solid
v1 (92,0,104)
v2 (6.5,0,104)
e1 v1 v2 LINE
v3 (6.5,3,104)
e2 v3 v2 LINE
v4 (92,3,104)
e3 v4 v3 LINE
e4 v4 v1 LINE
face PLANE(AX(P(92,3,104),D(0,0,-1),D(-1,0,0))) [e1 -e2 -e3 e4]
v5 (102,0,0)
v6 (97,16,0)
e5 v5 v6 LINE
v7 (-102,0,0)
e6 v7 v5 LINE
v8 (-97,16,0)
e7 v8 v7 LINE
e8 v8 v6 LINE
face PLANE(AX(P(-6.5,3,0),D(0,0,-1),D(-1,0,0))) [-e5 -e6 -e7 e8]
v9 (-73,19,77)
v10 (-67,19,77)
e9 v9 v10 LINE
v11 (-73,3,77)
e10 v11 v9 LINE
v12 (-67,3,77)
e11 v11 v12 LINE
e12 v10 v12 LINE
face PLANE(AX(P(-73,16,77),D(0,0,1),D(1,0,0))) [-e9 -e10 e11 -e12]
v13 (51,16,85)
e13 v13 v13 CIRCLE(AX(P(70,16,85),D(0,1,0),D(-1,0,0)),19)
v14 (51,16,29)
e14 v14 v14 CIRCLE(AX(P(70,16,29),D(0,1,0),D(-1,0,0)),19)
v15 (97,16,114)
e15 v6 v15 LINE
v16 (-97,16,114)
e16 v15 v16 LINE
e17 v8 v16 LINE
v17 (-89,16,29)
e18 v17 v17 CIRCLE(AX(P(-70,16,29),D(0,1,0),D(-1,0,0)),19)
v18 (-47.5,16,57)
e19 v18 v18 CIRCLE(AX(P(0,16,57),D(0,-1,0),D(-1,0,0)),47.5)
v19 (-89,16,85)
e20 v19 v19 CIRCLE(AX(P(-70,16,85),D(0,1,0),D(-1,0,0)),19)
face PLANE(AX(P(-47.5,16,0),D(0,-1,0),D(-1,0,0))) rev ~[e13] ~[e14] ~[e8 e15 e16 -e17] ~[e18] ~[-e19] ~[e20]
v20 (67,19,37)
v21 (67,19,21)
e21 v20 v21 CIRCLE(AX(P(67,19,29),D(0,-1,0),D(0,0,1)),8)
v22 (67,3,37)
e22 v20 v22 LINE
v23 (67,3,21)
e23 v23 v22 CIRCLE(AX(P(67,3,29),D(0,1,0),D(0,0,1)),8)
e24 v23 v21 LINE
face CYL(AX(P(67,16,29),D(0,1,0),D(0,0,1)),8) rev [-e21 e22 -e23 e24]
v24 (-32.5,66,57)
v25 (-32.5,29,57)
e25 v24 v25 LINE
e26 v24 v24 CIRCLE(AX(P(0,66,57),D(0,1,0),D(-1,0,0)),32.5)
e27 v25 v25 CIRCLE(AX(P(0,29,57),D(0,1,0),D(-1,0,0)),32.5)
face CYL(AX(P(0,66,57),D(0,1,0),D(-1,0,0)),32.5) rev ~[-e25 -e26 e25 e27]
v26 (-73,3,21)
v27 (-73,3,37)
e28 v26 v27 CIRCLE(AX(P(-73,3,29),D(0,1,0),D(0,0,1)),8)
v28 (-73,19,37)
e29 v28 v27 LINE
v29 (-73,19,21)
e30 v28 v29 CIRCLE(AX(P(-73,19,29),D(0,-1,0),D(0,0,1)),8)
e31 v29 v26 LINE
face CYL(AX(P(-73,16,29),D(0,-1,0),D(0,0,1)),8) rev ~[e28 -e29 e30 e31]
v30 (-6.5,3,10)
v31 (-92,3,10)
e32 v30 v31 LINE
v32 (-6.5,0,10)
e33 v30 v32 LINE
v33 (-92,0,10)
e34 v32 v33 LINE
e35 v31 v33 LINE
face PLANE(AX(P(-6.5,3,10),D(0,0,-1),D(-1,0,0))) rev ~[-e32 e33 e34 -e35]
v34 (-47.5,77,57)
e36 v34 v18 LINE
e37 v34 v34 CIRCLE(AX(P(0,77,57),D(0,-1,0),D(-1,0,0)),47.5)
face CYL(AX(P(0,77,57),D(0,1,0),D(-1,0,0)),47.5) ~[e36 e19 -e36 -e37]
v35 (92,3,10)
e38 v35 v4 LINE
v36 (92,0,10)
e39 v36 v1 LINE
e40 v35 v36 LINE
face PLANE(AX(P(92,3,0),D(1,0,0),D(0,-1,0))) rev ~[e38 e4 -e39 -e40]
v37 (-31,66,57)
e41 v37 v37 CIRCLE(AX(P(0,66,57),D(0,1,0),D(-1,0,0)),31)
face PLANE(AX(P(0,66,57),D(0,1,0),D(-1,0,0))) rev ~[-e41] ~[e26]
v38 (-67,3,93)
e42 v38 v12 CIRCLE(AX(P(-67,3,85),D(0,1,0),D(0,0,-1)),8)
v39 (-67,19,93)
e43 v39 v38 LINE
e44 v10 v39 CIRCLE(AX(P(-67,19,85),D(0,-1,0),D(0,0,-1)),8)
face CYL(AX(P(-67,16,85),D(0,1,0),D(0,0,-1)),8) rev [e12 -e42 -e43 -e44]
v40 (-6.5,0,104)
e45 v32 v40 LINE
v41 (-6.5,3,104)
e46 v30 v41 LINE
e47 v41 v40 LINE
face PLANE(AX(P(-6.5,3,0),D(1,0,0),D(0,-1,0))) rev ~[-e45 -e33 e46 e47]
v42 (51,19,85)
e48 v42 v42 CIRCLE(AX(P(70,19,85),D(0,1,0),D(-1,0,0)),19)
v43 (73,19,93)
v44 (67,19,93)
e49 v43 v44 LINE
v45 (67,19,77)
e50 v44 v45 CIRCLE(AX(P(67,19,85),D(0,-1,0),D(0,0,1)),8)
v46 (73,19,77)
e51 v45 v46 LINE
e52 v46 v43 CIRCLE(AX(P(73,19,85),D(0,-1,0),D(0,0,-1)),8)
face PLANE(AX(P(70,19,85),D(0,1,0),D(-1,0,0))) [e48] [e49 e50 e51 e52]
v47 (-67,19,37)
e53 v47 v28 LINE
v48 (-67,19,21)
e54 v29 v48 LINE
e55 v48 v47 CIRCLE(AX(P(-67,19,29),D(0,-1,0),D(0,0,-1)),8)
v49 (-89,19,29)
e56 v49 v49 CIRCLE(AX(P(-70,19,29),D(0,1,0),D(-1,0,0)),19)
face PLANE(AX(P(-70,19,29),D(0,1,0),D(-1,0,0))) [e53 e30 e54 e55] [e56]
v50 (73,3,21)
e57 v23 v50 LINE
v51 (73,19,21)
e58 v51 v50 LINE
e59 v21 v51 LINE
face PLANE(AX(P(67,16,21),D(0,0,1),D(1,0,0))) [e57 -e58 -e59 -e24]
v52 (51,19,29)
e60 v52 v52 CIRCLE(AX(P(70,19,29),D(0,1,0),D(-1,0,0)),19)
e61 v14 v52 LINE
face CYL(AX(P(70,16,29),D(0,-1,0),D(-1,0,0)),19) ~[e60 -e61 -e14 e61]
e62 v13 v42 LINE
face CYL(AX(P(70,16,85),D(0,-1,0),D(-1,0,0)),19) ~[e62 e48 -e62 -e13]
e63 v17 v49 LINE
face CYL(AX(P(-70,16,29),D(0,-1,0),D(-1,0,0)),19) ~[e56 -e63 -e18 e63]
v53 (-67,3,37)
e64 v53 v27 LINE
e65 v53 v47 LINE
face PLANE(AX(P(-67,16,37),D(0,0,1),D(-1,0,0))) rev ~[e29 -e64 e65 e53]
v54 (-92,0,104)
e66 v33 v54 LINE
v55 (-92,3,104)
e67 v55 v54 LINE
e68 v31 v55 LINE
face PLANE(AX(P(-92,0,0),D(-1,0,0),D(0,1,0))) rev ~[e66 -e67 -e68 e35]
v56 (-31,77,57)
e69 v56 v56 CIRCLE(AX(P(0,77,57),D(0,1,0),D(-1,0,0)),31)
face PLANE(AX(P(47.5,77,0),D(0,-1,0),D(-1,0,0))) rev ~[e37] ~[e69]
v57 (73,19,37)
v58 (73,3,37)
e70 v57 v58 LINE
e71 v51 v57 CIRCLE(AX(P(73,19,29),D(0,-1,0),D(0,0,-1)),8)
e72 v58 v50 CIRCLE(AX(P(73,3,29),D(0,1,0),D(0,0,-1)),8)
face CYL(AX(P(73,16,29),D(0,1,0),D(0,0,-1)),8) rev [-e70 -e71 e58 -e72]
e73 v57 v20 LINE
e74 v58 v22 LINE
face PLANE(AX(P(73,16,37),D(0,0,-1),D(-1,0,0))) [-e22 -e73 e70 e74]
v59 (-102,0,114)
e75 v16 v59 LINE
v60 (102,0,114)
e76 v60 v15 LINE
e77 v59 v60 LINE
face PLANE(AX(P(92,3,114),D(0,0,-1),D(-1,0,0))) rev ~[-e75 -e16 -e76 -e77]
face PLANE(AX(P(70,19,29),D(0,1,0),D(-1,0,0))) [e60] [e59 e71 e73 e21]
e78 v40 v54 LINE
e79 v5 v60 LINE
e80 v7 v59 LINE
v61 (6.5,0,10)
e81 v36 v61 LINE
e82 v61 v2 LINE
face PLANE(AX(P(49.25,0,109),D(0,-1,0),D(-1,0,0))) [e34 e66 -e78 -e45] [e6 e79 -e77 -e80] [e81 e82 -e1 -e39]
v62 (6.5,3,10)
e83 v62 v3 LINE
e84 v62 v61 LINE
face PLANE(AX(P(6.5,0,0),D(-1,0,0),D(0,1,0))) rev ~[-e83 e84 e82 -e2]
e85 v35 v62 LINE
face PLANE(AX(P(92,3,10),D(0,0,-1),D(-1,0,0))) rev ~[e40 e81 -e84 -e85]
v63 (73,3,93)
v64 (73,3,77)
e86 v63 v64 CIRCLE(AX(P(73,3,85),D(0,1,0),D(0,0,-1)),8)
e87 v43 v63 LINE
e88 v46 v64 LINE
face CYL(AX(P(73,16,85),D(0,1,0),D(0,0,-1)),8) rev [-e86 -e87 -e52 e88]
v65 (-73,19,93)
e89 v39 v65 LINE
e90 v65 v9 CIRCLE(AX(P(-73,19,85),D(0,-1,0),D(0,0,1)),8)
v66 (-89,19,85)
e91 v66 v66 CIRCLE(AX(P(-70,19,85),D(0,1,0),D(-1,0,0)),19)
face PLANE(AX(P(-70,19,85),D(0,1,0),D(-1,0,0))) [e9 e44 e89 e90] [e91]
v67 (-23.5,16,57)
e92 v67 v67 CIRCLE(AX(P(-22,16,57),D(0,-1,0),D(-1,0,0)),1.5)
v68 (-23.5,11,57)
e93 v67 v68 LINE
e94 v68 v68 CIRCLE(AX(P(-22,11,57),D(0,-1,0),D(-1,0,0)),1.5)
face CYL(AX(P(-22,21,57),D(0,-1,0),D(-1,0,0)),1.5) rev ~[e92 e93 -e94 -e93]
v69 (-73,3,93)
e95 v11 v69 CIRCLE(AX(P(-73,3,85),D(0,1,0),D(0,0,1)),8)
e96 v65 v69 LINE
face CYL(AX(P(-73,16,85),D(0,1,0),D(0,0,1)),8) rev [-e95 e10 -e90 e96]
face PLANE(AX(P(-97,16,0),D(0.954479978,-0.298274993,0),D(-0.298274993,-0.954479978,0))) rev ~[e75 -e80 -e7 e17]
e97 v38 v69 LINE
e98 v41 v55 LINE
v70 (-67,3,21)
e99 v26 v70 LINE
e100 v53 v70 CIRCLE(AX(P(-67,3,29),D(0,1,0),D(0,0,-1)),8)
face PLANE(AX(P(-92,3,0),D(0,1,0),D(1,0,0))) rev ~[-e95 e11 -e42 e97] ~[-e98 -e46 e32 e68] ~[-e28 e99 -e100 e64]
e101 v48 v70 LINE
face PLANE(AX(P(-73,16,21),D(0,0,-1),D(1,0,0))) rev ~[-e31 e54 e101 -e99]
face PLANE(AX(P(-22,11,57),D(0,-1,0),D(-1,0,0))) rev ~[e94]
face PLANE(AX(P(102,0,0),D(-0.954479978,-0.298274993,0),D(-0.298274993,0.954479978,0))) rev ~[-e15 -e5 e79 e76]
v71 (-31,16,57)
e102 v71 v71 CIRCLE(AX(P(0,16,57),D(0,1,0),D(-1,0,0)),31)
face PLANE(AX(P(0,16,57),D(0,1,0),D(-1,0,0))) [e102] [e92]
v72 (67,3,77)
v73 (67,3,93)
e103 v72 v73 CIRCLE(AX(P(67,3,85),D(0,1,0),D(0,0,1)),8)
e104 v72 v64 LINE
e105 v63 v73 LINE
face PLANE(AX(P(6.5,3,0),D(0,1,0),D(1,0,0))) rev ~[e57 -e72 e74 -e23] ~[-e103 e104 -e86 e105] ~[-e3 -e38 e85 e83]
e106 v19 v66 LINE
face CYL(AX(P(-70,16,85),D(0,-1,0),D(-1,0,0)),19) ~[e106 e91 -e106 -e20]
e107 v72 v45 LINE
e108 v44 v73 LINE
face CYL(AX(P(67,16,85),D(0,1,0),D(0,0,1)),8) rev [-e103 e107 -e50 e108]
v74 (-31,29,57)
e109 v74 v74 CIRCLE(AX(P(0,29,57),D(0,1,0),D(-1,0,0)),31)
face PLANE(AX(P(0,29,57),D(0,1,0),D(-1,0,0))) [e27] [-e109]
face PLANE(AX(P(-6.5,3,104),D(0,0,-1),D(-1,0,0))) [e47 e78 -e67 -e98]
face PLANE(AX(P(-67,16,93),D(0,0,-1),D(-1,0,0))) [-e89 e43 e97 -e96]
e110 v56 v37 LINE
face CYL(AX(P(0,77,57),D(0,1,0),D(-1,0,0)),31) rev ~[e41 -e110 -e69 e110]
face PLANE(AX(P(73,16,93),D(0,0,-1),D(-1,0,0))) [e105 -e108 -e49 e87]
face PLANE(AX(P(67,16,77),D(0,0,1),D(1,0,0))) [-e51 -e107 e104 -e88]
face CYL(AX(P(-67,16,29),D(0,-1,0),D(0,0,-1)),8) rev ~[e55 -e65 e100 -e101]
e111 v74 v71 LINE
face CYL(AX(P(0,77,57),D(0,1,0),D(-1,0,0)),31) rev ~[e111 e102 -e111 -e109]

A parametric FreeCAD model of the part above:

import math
import FreeCAD as App
import Part
import Sketcher
from FreeCAD import Vector


def add_polygon(sketch, points):
    """Adds a closed chain of lines whose ends are joined by coincident constraints."""
    first, n = sketch.GeometryCount, len(points)
    for a, b in zip(points, points[1:] + points[:1]):
        sketch.addGeometry(Part.LineSegment(App.Vector(*a, 0), App.Vector(*b, 0)), False)
    for i in range(n):
        sketch.addConstraint(Sketcher.Constraint("Coincident", first + i, 2, first + (i + 1) % n, 1))

doc = App.newDocument("Part")
body = doc.addObject("PartDesign::Body", "Body")

sketch1 = doc.addObject("Sketcher::SketchObject", "Sketch")
body.addObject(sketch1)
sketch1.AttachmentSupport = (doc.XY_Plane, [""])
sketch1.MapMode = "FlatFace"
add_polygon(sketch1, [(-6.5, 3), (-6.5, 0), (6.5, 0), (6.5, 3), (92, 3), (92, 0), (102, 0), (97, 16), (47.5, 16), (47.5, 77), (-47.5, 77), (-47.5, 16), (-97, 16), (-102, 0), (-92, 0), (-92, 3)])
sketch1.addConstraint(Sketcher.Constraint("Vertical", 0))
sketch1.addConstraint(Sketcher.Constraint("Horizontal", 1))
sketch1.addConstraint(Sketcher.Constraint("Vertical", 2))
sketch1.addConstraint(Sketcher.Constraint("Horizontal", 3))
sketch1.addConstraint(Sketcher.Constraint("Vertical", 4))
sketch1.addConstraint(Sketcher.Constraint("Horizontal", 5))
sketch1.addConstraint(Sketcher.Constraint("Horizontal", 7))
sketch1.addConstraint(Sketcher.Constraint("Vertical", 8))
sketch1.addConstraint(Sketcher.Constraint("Horizontal", 9))
sketch1.addConstraint(Sketcher.Constraint("Vertical", 10))
sketch1.addConstraint(Sketcher.Constraint("Horizontal", 11))
sketch1.addConstraint(Sketcher.Constraint("Horizontal", 13))
sketch1.addConstraint(Sketcher.Constraint("Vertical", 14))
sketch1.addConstraint(Sketcher.Constraint("Horizontal", 15))
sketch1.addConstraint(Sketcher.Constraint("Symmetric", 0, 2, 1, 2, -1, 1))
sketch1.addConstraint(Sketcher.Constraint("Symmetric", 5, 2, 12, 2, -1, 1))
sketch1.addConstraint(Sketcher.Constraint("Symmetric", 7, 2, 10, 2, -2))
sketch1.addConstraint(Sketcher.Constraint("Symmetric", 4, 2, 13, 2, -2))
sketch1.addConstraint(Sketcher.Constraint("Horizontal", 3, 2, 14, 2))
sketch1.addConstraint(Sketcher.Constraint("Equal", 7, 11))
sketch1.addConstraint(Sketcher.Constraint("DistanceX", 1, 1, 1, 2, 13.0))
sketch1.addConstraint(Sketcher.Constraint("DistanceX", 5, 1, 5, 2, 10.0))
sketch1.addConstraint(Sketcher.Constraint("DistanceX", 9, 2, 9, 1, 95.0))
sketch1.addConstraint(Sketcher.Constraint("DistanceY", 0, 2, 0, 1, 3.0))
sketch1.addConstraint(Sketcher.Constraint("DistanceY", 8, 1, 8, 2, 61.0))
sketch1.addConstraint(Sketcher.Constraint("DistanceX", 3, 1, 3, 2, 85.5))
sketch1.addConstraint(Sketcher.Constraint("DistanceX", 7, 2, 7, 1, 49.5))
sketch1.addConstraint(Sketcher.Constraint("DistanceY", -1, 1, 6, 2, 16.0))
pad1 = doc.addObject("PartDesign::Pad", "Pad")
body.addObject(pad1)
pad1.Profile = sketch1
pad1.Length = 114

sketch2 = doc.addObject("Sketcher::SketchObject", "Sketch001")
body.addObject(sketch2)
sketch2.AttachmentSupport = (doc.XZ_Plane, [""])
sketch2.MapMode = "FlatFace"
sketch2.AttachmentOffset = App.Placement(Vector(0, 0, -77), App.Rotation())
sketch2.addGeometry(Part.Circle(Vector(0, 57, 0), Vector(0, 0, 1), 31), False)
sketch2.addConstraint(Sketcher.Constraint("PointOnObject", 0, 3, -2))
sketch2.addConstraint(Sketcher.Constraint("Diameter", 0, 62.0))
sketch2.addConstraint(Sketcher.Constraint("DistanceY", -1, 1, 0, 3, 57.0))
pocket1 = doc.addObject("PartDesign::Pocket", "Pocket")
body.addObject(pocket1)
pocket1.Profile = sketch2
pocket1.Length = 61
pocket1.Reversed = True

sketch3 = doc.addObject("Sketcher::SketchObject", "Sketch002")
body.addObject(sketch3)
sketch3.AttachmentSupport = (doc.XZ_Plane, [""])
sketch3.MapMode = "FlatFace"
sketch3.AttachmentOffset = App.Placement(Vector(0, 0, -77), App.Rotation())
sketch3.addGeometry(Part.LineSegment(Vector(-47.5, 0, 0), Vector(-47.5, 57, 0)), False)
sketch3.addGeometry(Part.ArcOfCircle(Part.Circle(Vector(0, 57, 0), Vector(0, 0, 1), 47.5), math.radians(180), math.radians(360)), False)
sketch3.addGeometry(Part.LineSegment(Vector(47.5, 57, 0), Vector(47.5, 0, 0)), False)
sketch3.addGeometry(Part.LineSegment(Vector(47.5, 0, 0), Vector(-47.5, 0, 0)), False)
sketch3.addGeometry(Part.ArcOfCircle(Part.Circle(Vector(0, 57, 0), Vector(0, 0, 1), 47.5), math.radians(0), math.radians(180)), False)
sketch3.addGeometry(Part.LineSegment(Vector(-47.5, 57, 0), Vector(-47.5, 114, 0)), False)
sketch3.addGeometry(Part.LineSegment(Vector(-47.5, 114, 0), Vector(47.5, 114, 0)), False)
sketch3.addGeometry(Part.LineSegment(Vector(47.5, 114, 0), Vector(47.5, 57, 0)), False)
sketch3.addConstraint(Sketcher.Constraint("Tangent", 0, 2, 1, 1))
sketch3.addConstraint(Sketcher.Constraint("Tangent", 1, 2, 2, 1))
sketch3.addConstraint(Sketcher.Constraint("Coincident", 2, 2, 3, 1))
sketch3.addConstraint(Sketcher.Constraint("Coincident", 3, 2, 0, 1))
sketch3.addConstraint(Sketcher.Constraint("Tangent", 4, 2, 5, 1))
sketch3.addConstraint(Sketcher.Constraint("Coincident", 5, 2, 6, 1))
sketch3.addConstraint(Sketcher.Constraint("Coincident", 6, 2, 7, 1))
sketch3.addConstraint(Sketcher.Constraint("Tangent", 7, 2, 4, 1))
sketch3.addConstraint(Sketcher.Constraint("Vertical", 0))
sketch3.addConstraint(Sketcher.Constraint("Vertical", 2))
sketch3.addConstraint(Sketcher.Constraint("Horizontal", 3))
sketch3.addConstraint(Sketcher.Constraint("Vertical", 5))
sketch3.addConstraint(Sketcher.Constraint("Horizontal", 6))
sketch3.addConstraint(Sketcher.Constraint("Vertical", 7))
sketch3.addConstraint(Sketcher.Constraint("Coincident", 4, 3, 1, 3))
sketch3.addConstraint(Sketcher.Constraint("Equal", 1, 4))
sketch3.addConstraint(Sketcher.Constraint("Symmetric", 2, 2, 3, 2, -1, 1))
sketch3.addConstraint(Sketcher.Constraint("Equal", 2, 5))
sketch3.addConstraint(Sketcher.Constraint("Radius", 1, 47.5))
sketch3.addConstraint(Sketcher.Constraint("DistanceY", 0, 1, 0, 2, 57.0))
pocket2 = doc.addObject("PartDesign::Pocket", "Pocket001")
body.addObject(pocket2)
pocket2.Profile = sketch3
pocket2.Length = 61
pocket2.Reversed = True

sketch4 = doc.addObject("Sketcher::SketchObject", "Sketch003")
body.addObject(sketch4)
sketch4.AttachmentSupport = (doc.XZ_Plane, [""])
sketch4.MapMode = "FlatFace"
sketch4.AttachmentOffset = App.Placement(Vector(0, 0, -66), App.Rotation())
sketch4.addGeometry(Part.Circle(Vector(0, 57, 0), Vector(0, 0, 1), 32.5), False)
sketch4.addConstraint(Sketcher.Constraint("PointOnObject", 0, 3, -2))
sketch4.addConstraint(Sketcher.Constraint("Diameter", 0, 65.0))
sketch4.addConstraint(Sketcher.Constraint("DistanceY", -1, 1, 0, 3, 57.0))
pocket3 = doc.addObject("PartDesign::Pocket", "Pocket002")
body.addObject(pocket3)
pocket3.Profile = sketch4
pocket3.Length = 37
pocket3.Reversed = True

sketch5 = doc.addObject("Sketcher::SketchObject", "Sketch004")
body.addObject(sketch5)
sketch5.AttachmentSupport = (doc.XZ_Plane, [""])
sketch5.MapMode = "FlatFace"
sketch5.AttachmentOffset = App.Placement(Vector(0, 0, -16), App.Rotation())
sketch5.addGeometry(Part.LineSegment(Vector(-67, 21, 0), Vector(-73, 21, 0)), False)
sketch5.addGeometry(Part.ArcOfCircle(Part.Circle(Vector(-73, 29, 0), Vector(0, 0, 1), 8), math.radians(90), math.radians(270)), False)
sketch5.addGeometry(Part.LineSegment(Vector(-73, 37, 0), Vector(-67, 37, 0)), False)
sketch5.addGeometry(Part.ArcOfCircle(Part.Circle(Vector(-67, 29, 0), Vector(0, 0, 1), 8), math.radians(-90), math.radians(90)), False)
sketch5.addGeometry(Part.LineSegment(Vector(73, 21, 0), Vector(67, 21, 0)), False)
sketch5.addGeometry(Part.ArcOfCircle(Part.Circle(Vector(67, 29, 0), Vector(0, 0, 1), 8), math.radians(90), math.radians(270)), False)
sketch5.addGeometry(Part.LineSegment(Vector(67, 37, 0), Vector(73, 37, 0)), False)
sketch5.addGeometry(Part.ArcOfCircle(Part.Circle(Vector(73, 29, 0), Vector(0, 0, 1), 8), math.radians(-90), math.radians(90)), False)
sketch5.addGeometry(Part.LineSegment(Vector(73, 77, 0), Vector(67, 77, 0)), False)
sketch5.addGeometry(Part.ArcOfCircle(Part.Circle(Vector(67, 85, 0), Vector(0, 0, 1), 8), math.radians(90), math.radians(270)), False)
sketch5.addGeometry(Part.LineSegment(Vector(67, 93, 0), Vector(73, 93, 0)), False)
sketch5.addGeometry(Part.ArcOfCircle(Part.Circle(Vector(73, 85, 0), Vector(0, 0, 1), 8), math.radians(-90), math.radians(90)), False)
sketch5.addGeometry(Part.LineSegment(Vector(-67, 77, 0), Vector(-73, 77, 0)), False)
sketch5.addGeometry(Part.ArcOfCircle(Part.Circle(Vector(-73, 85, 0), Vector(0, 0, 1), 8), math.radians(90), math.radians(270)), False)
sketch5.addGeometry(Part.LineSegment(Vector(-73, 93, 0), Vector(-67, 93, 0)), False)
sketch5.addGeometry(Part.ArcOfCircle(Part.Circle(Vector(-67, 85, 0), Vector(0, 0, 1), 8), math.radians(-90), math.radians(90)), False)
sketch5.addConstraint(Sketcher.Constraint("Tangent", 0, 2, 1, 2))
sketch5.addConstraint(Sketcher.Constraint("Tangent", 1, 1, 2, 1))
sketch5.addConstraint(Sketcher.Constraint("Tangent", 2, 2, 3, 2))
sketch5.addConstraint(Sketcher.Constraint("Tangent", 3, 1, 0, 1))
sketch5.addConstraint(Sketcher.Constraint("Tangent", 4, 2, 5, 2))
sketch5.addConstraint(Sketcher.Constraint("Tangent", 5, 1, 6, 1))
sketch5.addConstraint(Sketcher.Constraint("Tangent", 6, 2, 7, 2))
sketch5.addConstraint(Sketcher.Constraint("Tangent", 7, 1, 4, 1))
sketch5.addConstraint(Sketcher.Constraint("Tangent", 8, 2, 9, 2))
sketch5.addConstraint(Sketcher.Constraint("Tangent", 9, 1, 10, 1))
sketch5.addConstraint(Sketcher.Constraint("Tangent", 10, 2, 11, 2))
sketch5.addConstraint(Sketcher.Constraint("Tangent", 11, 1, 8, 1))
sketch5.addConstraint(Sketcher.Constraint("Tangent", 12, 2, 13, 2))
sketch5.addConstraint(Sketcher.Constraint("Tangent", 13, 1, 14, 1))
sketch5.addConstraint(Sketcher.Constraint("Tangent", 14, 2, 15, 2))
sketch5.addConstraint(Sketcher.Constraint("Tangent", 15, 1, 12, 1))
sketch5.addConstraint(Sketcher.Constraint("Horizontal", 0))
sketch5.addConstraint(Sketcher.Constraint("Horizontal", 2))
sketch5.addConstraint(Sketcher.Constraint("Horizontal", 4))
sketch5.addConstraint(Sketcher.Constraint("Horizontal", 6))
sketch5.addConstraint(Sketcher.Constraint("Horizontal", 8))
sketch5.addConstraint(Sketcher.Constraint("Horizontal", 10))
sketch5.addConstraint(Sketcher.Constraint("Horizontal", 12))
sketch5.addConstraint(Sketcher.Constraint("Horizontal", 14))
sketch5.addConstraint(Sketcher.Constraint("Equal", 3, 5))
sketch5.addConstraint(Sketcher.Constraint("Equal", 7, 9))
sketch5.addConstraint(Sketcher.Constraint("Equal", 11, 13))
sketch5.addConstraint(Sketcher.Constraint("Symmetric", 3, 3, 5, 3, -2))
sketch5.addConstraint(Sketcher.Constraint("Symmetric", 11, 3, 13, 3, -2))
sketch5.addConstraint(Sketcher.Constraint("Vertical", 5, 3, 9, 3))
sketch5.addConstraint(Sketcher.Constraint("Vertical", 7, 3, 11, 3))
sketch5.addConstraint(Sketcher.Constraint("Vertical", 1, 3, 13, 3))
sketch5.addConstraint(Sketcher.Constraint("Vertical", 3, 3, 15, 3))
sketch5.addConstraint(Sketcher.Constraint("Radius", 1, 8.0))
sketch5.addConstraint(Sketcher.Constraint("DistanceX", 0, 2, 0, 1, 6.0))
sketch5.addConstraint(Sketcher.Constraint("DistanceX", 1, 3, -1, 1, 73.0))
sketch5.addConstraint(Sketcher.Constraint("DistanceY", -1, 1, 1, 3, 29.0))
sketch5.addConstraint(Sketcher.Constraint("DistanceY", -1, 1, 9, 3, 85.0))
pocket4 = doc.addObject("PartDesign::Pocket", "Pocket003")
body.addObject(pocket4)
pocket4.Profile = sketch5
pocket4.Type = "ThroughAll"
pocket4.Reversed = True

sketch6 = doc.addObject("Sketcher::SketchObject", "Sketch005")
body.addObject(sketch6)
sketch6.AttachmentSupport = (doc.XZ_Plane, [""])
sketch6.MapMode = "FlatFace"
sketch6.AttachmentOffset = App.Placement(Vector(0, 0, -16), App.Rotation())
sketch6.addGeometry(Part.Circle(Vector(-70, 29, 0), Vector(0, 0, 1), 19), False)
sketch6.addGeometry(Part.ArcOfCircle(Part.Circle(Vector(-67, 29, 0), Vector(0, 0, 1), 8), math.radians(-90), math.radians(90)), False)
sketch6.addGeometry(Part.LineSegment(Vector(-67, 37, 0), Vector(-73, 37, 0)), False)
sketch6.addGeometry(Part.ArcOfCircle(Part.Circle(Vector(-73, 29, 0), Vector(0, 0, 1), 8), math.radians(90), math.radians(270)), False)
sketch6.addGeometry(Part.LineSegment(Vector(-73, 21, 0), Vector(-67, 21, 0)), False)
sketch6.addGeometry(Part.Circle(Vector(70, 29, 0), Vector(0, 0, 1), 19), False)
sketch6.addGeometry(Part.ArcOfCircle(Part.Circle(Vector(73, 29, 0), Vector(0, 0, 1), 8), math.radians(-90), math.radians(90)), False)
sketch6.addGeometry(Part.LineSegment(Vector(73, 37, 0), Vector(67, 37, 0)), False)
sketch6.addGeometry(Part.ArcOfCircle(Part.Circle(Vector(67, 29, 0), Vector(0, 0, 1), 8), math.radians(90), math.radians(270)), False)
sketch6.addGeometry(Part.LineSegment(Vector(67, 21, 0), Vector(73, 21, 0)), False)
sketch6.addGeometry(Part.Circle(Vector(70, 85, 0), Vector(0, 0, 1), 19), False)
sketch6.addGeometry(Part.ArcOfCircle(Part.Circle(Vector(73, 85, 0), Vector(0, 0, 1), 8), math.radians(-90), math.radians(90)), False)
sketch6.addGeometry(Part.LineSegment(Vector(73, 93, 0), Vector(67, 93, 0)), False)
sketch6.addGeometry(Part.ArcOfCircle(Part.Circle(Vector(67, 85, 0), Vector(0, 0, 1), 8), math.radians(90), math.radians(270)), False)
sketch6.addGeometry(Part.LineSegment(Vector(67, 77, 0), Vector(73, 77, 0)), False)
sketch6.addGeometry(Part.Circle(Vector(-70, 85, 0), Vector(0, 0, 1), 19), False)
sketch6.addGeometry(Part.ArcOfCircle(Part.Circle(Vector(-67, 85, 0), Vector(0, 0, 1), 8), math.radians(-90), math.radians(90)), False)
sketch6.addGeometry(Part.LineSegment(Vector(-67, 93, 0), Vector(-73, 93, 0)), False)
sketch6.addGeometry(Part.ArcOfCircle(Part.Circle(Vector(-73, 85, 0), Vector(0, 0, 1), 8), math.radians(90), math.radians(270)), False)
sketch6.addGeometry(Part.LineSegment(Vector(-73, 77, 0), Vector(-67, 77, 0)), False)
sketch6.addConstraint(Sketcher.Constraint("Tangent", 1, 2, 2, 1))
sketch6.addConstraint(Sketcher.Constraint("Tangent", 2, 2, 3, 1))
sketch6.addConstraint(Sketcher.Constraint("Tangent", 3, 2, 4, 1))
sketch6.addConstraint(Sketcher.Constraint("Tangent", 4, 2, 1, 1))
sketch6.addConstraint(Sketcher.Constraint("Tangent", 6, 2, 7, 1))
sketch6.addConstraint(Sketcher.Constraint("Tangent", 7, 2, 8, 1))
sketch6.addConstraint(Sketcher.Constraint("Tangent", 8, 2, 9, 1))
sketch6.addConstraint(Sketcher.Constraint("Tangent", 9, 2, 6, 1))
sketch6.addConstraint(Sketcher.Constraint("Tangent", 11, 2, 12, 1))
sketch6.addConstraint(Sketcher.Constraint("Tangent", 12, 2, 13, 1))
sketch6.addConstraint(Sketcher.Constraint("Tangent", 13, 2, 14, 1))
sketch6.addConstraint(Sketcher.Constraint("Tangent", 14, 2, 11, 1))
sketch6.addConstraint(Sketcher.Constraint("Tangent", 16, 2, 17, 1))
sketch6.addConstraint(Sketcher.Constraint("Tangent", 17, 2, 18, 1))
sketch6.addConstraint(Sketcher.Constraint("Tangent", 18, 2, 19, 1))
sketch6.addConstraint(Sketcher.Constraint("Tangent", 19, 2, 16, 1))
sketch6.addConstraint(Sketcher.Constraint("Horizontal", 2))
sketch6.addConstraint(Sketcher.Constraint("Horizontal", 4))
sketch6.addConstraint(Sketcher.Constraint("Horizontal", 7))
sketch6.addConstraint(Sketcher.Constraint("Horizontal", 9))
sketch6.addConstraint(Sketcher.Constraint("Horizontal", 12))
sketch6.addConstraint(Sketcher.Constraint("Horizontal", 14))
sketch6.addConstraint(Sketcher.Constraint("Horizontal", 17))
sketch6.addConstraint(Sketcher.Constraint("Horizontal", 19))
sketch6.addConstraint(Sketcher.Constraint("Equal", 0, 5))
sketch6.addConstraint(Sketcher.Constraint("Equal", 3, 6))
sketch6.addConstraint(Sketcher.Constraint("Equal", 5, 10))
sketch6.addConstraint(Sketcher.Constraint("Equal", 8, 11))
sketch6.addConstraint(Sketcher.Constraint("Equal", 10, 15))
sketch6.addConstraint(Sketcher.Constraint("Equal", 13, 16))
sketch6.addConstraint(Sketcher.Constraint("Symmetric", 0, 3, 5, 3, -2))
sketch6.addConstraint(Sketcher.Constraint("Symmetric", 3, 3, 6, 3, -2))
sketch6.addConstraint(Sketcher.Constraint("Symmetric", 10, 3, 15, 3, -2))
sketch6.addConstraint(Sketcher.Constraint("Symmetric", 13, 3, 16, 3, -2))
sketch6.addConstraint(Sketcher.Constraint("Horizontal", 0, 3, 1, 3))
sketch6.addConstraint(Sketcher.Constraint("Horizontal", 10, 3, 11, 3))
sketch6.addConstraint(Sketcher.Constraint("Vertical", 5, 3, 10, 3))
sketch6.addConstraint(Sketcher.Constraint("Vertical", 6, 3, 11, 3))
sketch6.addConstraint(Sketcher.Constraint("Vertical", 8, 3, 13, 3))
sketch6.addConstraint(Sketcher.Constraint("Vertical", 1, 3, 16, 3))
sketch6.addConstraint(Sketcher.Constraint("Vertical", 3, 3, 18, 3))
sketch6.addConstraint(Sketcher.Constraint("Diameter", 0, 38.0))
sketch6.addConstraint(Sketcher.Constraint("Radius", 1, 8.0))
sketch6.addConstraint(Sketcher.Constraint("DistanceX", 2, 2, 2, 1, 6.0))
sketch6.addConstraint(Sketcher.Constraint("DistanceX", 0, 3, -1, 1, 70.0))
sketch6.addConstraint(Sketcher.Constraint("DistanceY", -1, 1, 0, 3, 29.0))
sketch6.addConstraint(Sketcher.Constraint("DistanceX", 1, 3, -1, 1, 67.0))
sketch6.addConstraint(Sketcher.Constraint("DistanceY", -1, 1, 10, 3, 85.0))
pad2 = doc.addObject("PartDesign::Pad", "Pad001")
body.addObject(pad2)
pad2.Profile = sketch6
pad2.Length = 3
pad2.Reversed = True

sketch7 = doc.addObject("Sketcher::SketchObject", "Sketch006")
body.addObject(sketch7)
sketch7.AttachmentSupport = (doc.XZ_Plane, [""])
sketch7.MapMode = "FlatFace"
sketch7.AttachmentOffset = App.Placement(Vector(0, 0, -3), App.Rotation())
add_polygon(sketch7, [(-6.5, 0), (-6.5, 10), (-92, 10), (-92, 0)])
add_polygon(sketch7, [(-6.5, 104), (-6.5, 114), (-92, 114), (-92, 104)])
sketch7.addConstraint(Sketcher.Constraint("Vertical", 0))
sketch7.addConstraint(Sketcher.Constraint("Horizontal", 1))
sketch7.addConstraint(Sketcher.Constraint("Vertical", 2))
sketch7.addConstraint(Sketcher.Constraint("Horizontal", 3))
sketch7.addConstraint(Sketcher.Constraint("Vertical", 4))
sketch7.addConstraint(Sketcher.Constraint("Horizontal", 5))
sketch7.addConstraint(Sketcher.Constraint("Vertical", 6))
sketch7.addConstraint(Sketcher.Constraint("Horizontal", 7))
sketch7.addConstraint(Sketcher.Constraint("PointOnObject", 2, 2, -1))
sketch7.addConstraint(Sketcher.Constraint("Vertical", 3, 2, 4, 2))
sketch7.addConstraint(Sketcher.Constraint("Vertical", 2, 2, 5, 2))
sketch7.addConstraint(Sketcher.Constraint("Equal", 2, 4))
sketch7.addConstraint(Sketcher.Constraint("DistanceY", 0, 1, 0, 2, 10.0))
sketch7.addConstraint(Sketcher.Constraint("DistanceX", 1, 2, 1, 1, 85.5))
sketch7.addConstraint(Sketcher.Constraint("DistanceX", 1, 2, -1, 1, 92.0))
sketch7.addConstraint(Sketcher.Constraint("DistanceY", -1, 1, 4, 2, 114.0))
pad3 = doc.addObject("PartDesign::Pad", "Pad002")
body.addObject(pad3)
pad3.Profile = sketch7
pad3.Length = 3

sketch8 = doc.addObject("Sketcher::SketchObject", "Sketch007")
body.addObject(sketch8)
sketch8.AttachmentSupport = (doc.XZ_Plane, [""])
sketch8.MapMode = "FlatFace"
sketch8.AttachmentOffset = App.Placement(Vector(0, 0, -3), App.Rotation())
add_polygon(sketch8, [(92, 104), (92, 114), (6.5, 114), (6.5, 104)])
add_polygon(sketch8, [(92, 0), (92, 10), (6.5, 10), (6.5, 0)])
sketch8.addConstraint(Sketcher.Constraint("Vertical", 0))
sketch8.addConstraint(Sketcher.Constraint("Horizontal", 1))
sketch8.addConstraint(Sketcher.Constraint("Vertical", 2))
sketch8.addConstraint(Sketcher.Constraint("Horizontal", 3))
sketch8.addConstraint(Sketcher.Constraint("Vertical", 4))
sketch8.addConstraint(Sketcher.Constraint("Horizontal", 5))
sketch8.addConstraint(Sketcher.Constraint("Vertical", 6))
sketch8.addConstraint(Sketcher.Constraint("Horizontal", 7))
sketch8.addConstraint(Sketcher.Constraint("PointOnObject", 6, 2, -1))
sketch8.addConstraint(Sketcher.Constraint("Vertical", 3, 2, 4, 2))
sketch8.addConstraint(Sketcher.Constraint("Vertical", 2, 2, 5, 2))
sketch8.addConstraint(Sketcher.Constraint("Equal", 2, 4))
sketch8.addConstraint(Sketcher.Constraint("DistanceY", 0, 1, 0, 2, 10.0))
sketch8.addConstraint(Sketcher.Constraint("DistanceX", 1, 2, 1, 1, 85.5))
sketch8.addConstraint(Sketcher.Constraint("DistanceX", -1, 1, 0, 2, 92.0))
sketch8.addConstraint(Sketcher.Constraint("DistanceY", -1, 1, 0, 2, 114.0))
pad4 = doc.addObject("PartDesign::Pad", "Pad003")
body.addObject(pad4)
pad4.Profile = sketch8
pad4.Length = 3

sketch9 = doc.addObject("Sketcher::SketchObject", "Sketch008")
body.addObject(sketch9)
sketch9.AttachmentSupport = (doc.XZ_Plane, [""])
sketch9.MapMode = "FlatFace"
sketch9.AttachmentOffset = App.Placement(Vector(0, 0, -16), App.Rotation())
sketch9.addGeometry(Part.Circle(Vector(-22, 57, 0), Vector(0, 0, 1), 1.5), False)
sketch9.addConstraint(Sketcher.Constraint("Diameter", 0, 3.0))
sketch9.addConstraint(Sketcher.Constraint("DistanceX", 0, 3, -1, 1, 22.0))
sketch9.addConstraint(Sketcher.Constraint("DistanceY", -1, 1, 0, 3, 57.0))
doc.recompute()
hole = doc.addObject("PartDesign::Hole", "Hole")
body.addObject(hole)
hole.Profile = sketch9
hole.ThreadType = "None"
hole.Diameter = 3
hole.DepthType = "Dimension"
hole.Depth = 5
hole.DrillPoint = "Flat"
hole.Reversed = True

doc.recompute()
